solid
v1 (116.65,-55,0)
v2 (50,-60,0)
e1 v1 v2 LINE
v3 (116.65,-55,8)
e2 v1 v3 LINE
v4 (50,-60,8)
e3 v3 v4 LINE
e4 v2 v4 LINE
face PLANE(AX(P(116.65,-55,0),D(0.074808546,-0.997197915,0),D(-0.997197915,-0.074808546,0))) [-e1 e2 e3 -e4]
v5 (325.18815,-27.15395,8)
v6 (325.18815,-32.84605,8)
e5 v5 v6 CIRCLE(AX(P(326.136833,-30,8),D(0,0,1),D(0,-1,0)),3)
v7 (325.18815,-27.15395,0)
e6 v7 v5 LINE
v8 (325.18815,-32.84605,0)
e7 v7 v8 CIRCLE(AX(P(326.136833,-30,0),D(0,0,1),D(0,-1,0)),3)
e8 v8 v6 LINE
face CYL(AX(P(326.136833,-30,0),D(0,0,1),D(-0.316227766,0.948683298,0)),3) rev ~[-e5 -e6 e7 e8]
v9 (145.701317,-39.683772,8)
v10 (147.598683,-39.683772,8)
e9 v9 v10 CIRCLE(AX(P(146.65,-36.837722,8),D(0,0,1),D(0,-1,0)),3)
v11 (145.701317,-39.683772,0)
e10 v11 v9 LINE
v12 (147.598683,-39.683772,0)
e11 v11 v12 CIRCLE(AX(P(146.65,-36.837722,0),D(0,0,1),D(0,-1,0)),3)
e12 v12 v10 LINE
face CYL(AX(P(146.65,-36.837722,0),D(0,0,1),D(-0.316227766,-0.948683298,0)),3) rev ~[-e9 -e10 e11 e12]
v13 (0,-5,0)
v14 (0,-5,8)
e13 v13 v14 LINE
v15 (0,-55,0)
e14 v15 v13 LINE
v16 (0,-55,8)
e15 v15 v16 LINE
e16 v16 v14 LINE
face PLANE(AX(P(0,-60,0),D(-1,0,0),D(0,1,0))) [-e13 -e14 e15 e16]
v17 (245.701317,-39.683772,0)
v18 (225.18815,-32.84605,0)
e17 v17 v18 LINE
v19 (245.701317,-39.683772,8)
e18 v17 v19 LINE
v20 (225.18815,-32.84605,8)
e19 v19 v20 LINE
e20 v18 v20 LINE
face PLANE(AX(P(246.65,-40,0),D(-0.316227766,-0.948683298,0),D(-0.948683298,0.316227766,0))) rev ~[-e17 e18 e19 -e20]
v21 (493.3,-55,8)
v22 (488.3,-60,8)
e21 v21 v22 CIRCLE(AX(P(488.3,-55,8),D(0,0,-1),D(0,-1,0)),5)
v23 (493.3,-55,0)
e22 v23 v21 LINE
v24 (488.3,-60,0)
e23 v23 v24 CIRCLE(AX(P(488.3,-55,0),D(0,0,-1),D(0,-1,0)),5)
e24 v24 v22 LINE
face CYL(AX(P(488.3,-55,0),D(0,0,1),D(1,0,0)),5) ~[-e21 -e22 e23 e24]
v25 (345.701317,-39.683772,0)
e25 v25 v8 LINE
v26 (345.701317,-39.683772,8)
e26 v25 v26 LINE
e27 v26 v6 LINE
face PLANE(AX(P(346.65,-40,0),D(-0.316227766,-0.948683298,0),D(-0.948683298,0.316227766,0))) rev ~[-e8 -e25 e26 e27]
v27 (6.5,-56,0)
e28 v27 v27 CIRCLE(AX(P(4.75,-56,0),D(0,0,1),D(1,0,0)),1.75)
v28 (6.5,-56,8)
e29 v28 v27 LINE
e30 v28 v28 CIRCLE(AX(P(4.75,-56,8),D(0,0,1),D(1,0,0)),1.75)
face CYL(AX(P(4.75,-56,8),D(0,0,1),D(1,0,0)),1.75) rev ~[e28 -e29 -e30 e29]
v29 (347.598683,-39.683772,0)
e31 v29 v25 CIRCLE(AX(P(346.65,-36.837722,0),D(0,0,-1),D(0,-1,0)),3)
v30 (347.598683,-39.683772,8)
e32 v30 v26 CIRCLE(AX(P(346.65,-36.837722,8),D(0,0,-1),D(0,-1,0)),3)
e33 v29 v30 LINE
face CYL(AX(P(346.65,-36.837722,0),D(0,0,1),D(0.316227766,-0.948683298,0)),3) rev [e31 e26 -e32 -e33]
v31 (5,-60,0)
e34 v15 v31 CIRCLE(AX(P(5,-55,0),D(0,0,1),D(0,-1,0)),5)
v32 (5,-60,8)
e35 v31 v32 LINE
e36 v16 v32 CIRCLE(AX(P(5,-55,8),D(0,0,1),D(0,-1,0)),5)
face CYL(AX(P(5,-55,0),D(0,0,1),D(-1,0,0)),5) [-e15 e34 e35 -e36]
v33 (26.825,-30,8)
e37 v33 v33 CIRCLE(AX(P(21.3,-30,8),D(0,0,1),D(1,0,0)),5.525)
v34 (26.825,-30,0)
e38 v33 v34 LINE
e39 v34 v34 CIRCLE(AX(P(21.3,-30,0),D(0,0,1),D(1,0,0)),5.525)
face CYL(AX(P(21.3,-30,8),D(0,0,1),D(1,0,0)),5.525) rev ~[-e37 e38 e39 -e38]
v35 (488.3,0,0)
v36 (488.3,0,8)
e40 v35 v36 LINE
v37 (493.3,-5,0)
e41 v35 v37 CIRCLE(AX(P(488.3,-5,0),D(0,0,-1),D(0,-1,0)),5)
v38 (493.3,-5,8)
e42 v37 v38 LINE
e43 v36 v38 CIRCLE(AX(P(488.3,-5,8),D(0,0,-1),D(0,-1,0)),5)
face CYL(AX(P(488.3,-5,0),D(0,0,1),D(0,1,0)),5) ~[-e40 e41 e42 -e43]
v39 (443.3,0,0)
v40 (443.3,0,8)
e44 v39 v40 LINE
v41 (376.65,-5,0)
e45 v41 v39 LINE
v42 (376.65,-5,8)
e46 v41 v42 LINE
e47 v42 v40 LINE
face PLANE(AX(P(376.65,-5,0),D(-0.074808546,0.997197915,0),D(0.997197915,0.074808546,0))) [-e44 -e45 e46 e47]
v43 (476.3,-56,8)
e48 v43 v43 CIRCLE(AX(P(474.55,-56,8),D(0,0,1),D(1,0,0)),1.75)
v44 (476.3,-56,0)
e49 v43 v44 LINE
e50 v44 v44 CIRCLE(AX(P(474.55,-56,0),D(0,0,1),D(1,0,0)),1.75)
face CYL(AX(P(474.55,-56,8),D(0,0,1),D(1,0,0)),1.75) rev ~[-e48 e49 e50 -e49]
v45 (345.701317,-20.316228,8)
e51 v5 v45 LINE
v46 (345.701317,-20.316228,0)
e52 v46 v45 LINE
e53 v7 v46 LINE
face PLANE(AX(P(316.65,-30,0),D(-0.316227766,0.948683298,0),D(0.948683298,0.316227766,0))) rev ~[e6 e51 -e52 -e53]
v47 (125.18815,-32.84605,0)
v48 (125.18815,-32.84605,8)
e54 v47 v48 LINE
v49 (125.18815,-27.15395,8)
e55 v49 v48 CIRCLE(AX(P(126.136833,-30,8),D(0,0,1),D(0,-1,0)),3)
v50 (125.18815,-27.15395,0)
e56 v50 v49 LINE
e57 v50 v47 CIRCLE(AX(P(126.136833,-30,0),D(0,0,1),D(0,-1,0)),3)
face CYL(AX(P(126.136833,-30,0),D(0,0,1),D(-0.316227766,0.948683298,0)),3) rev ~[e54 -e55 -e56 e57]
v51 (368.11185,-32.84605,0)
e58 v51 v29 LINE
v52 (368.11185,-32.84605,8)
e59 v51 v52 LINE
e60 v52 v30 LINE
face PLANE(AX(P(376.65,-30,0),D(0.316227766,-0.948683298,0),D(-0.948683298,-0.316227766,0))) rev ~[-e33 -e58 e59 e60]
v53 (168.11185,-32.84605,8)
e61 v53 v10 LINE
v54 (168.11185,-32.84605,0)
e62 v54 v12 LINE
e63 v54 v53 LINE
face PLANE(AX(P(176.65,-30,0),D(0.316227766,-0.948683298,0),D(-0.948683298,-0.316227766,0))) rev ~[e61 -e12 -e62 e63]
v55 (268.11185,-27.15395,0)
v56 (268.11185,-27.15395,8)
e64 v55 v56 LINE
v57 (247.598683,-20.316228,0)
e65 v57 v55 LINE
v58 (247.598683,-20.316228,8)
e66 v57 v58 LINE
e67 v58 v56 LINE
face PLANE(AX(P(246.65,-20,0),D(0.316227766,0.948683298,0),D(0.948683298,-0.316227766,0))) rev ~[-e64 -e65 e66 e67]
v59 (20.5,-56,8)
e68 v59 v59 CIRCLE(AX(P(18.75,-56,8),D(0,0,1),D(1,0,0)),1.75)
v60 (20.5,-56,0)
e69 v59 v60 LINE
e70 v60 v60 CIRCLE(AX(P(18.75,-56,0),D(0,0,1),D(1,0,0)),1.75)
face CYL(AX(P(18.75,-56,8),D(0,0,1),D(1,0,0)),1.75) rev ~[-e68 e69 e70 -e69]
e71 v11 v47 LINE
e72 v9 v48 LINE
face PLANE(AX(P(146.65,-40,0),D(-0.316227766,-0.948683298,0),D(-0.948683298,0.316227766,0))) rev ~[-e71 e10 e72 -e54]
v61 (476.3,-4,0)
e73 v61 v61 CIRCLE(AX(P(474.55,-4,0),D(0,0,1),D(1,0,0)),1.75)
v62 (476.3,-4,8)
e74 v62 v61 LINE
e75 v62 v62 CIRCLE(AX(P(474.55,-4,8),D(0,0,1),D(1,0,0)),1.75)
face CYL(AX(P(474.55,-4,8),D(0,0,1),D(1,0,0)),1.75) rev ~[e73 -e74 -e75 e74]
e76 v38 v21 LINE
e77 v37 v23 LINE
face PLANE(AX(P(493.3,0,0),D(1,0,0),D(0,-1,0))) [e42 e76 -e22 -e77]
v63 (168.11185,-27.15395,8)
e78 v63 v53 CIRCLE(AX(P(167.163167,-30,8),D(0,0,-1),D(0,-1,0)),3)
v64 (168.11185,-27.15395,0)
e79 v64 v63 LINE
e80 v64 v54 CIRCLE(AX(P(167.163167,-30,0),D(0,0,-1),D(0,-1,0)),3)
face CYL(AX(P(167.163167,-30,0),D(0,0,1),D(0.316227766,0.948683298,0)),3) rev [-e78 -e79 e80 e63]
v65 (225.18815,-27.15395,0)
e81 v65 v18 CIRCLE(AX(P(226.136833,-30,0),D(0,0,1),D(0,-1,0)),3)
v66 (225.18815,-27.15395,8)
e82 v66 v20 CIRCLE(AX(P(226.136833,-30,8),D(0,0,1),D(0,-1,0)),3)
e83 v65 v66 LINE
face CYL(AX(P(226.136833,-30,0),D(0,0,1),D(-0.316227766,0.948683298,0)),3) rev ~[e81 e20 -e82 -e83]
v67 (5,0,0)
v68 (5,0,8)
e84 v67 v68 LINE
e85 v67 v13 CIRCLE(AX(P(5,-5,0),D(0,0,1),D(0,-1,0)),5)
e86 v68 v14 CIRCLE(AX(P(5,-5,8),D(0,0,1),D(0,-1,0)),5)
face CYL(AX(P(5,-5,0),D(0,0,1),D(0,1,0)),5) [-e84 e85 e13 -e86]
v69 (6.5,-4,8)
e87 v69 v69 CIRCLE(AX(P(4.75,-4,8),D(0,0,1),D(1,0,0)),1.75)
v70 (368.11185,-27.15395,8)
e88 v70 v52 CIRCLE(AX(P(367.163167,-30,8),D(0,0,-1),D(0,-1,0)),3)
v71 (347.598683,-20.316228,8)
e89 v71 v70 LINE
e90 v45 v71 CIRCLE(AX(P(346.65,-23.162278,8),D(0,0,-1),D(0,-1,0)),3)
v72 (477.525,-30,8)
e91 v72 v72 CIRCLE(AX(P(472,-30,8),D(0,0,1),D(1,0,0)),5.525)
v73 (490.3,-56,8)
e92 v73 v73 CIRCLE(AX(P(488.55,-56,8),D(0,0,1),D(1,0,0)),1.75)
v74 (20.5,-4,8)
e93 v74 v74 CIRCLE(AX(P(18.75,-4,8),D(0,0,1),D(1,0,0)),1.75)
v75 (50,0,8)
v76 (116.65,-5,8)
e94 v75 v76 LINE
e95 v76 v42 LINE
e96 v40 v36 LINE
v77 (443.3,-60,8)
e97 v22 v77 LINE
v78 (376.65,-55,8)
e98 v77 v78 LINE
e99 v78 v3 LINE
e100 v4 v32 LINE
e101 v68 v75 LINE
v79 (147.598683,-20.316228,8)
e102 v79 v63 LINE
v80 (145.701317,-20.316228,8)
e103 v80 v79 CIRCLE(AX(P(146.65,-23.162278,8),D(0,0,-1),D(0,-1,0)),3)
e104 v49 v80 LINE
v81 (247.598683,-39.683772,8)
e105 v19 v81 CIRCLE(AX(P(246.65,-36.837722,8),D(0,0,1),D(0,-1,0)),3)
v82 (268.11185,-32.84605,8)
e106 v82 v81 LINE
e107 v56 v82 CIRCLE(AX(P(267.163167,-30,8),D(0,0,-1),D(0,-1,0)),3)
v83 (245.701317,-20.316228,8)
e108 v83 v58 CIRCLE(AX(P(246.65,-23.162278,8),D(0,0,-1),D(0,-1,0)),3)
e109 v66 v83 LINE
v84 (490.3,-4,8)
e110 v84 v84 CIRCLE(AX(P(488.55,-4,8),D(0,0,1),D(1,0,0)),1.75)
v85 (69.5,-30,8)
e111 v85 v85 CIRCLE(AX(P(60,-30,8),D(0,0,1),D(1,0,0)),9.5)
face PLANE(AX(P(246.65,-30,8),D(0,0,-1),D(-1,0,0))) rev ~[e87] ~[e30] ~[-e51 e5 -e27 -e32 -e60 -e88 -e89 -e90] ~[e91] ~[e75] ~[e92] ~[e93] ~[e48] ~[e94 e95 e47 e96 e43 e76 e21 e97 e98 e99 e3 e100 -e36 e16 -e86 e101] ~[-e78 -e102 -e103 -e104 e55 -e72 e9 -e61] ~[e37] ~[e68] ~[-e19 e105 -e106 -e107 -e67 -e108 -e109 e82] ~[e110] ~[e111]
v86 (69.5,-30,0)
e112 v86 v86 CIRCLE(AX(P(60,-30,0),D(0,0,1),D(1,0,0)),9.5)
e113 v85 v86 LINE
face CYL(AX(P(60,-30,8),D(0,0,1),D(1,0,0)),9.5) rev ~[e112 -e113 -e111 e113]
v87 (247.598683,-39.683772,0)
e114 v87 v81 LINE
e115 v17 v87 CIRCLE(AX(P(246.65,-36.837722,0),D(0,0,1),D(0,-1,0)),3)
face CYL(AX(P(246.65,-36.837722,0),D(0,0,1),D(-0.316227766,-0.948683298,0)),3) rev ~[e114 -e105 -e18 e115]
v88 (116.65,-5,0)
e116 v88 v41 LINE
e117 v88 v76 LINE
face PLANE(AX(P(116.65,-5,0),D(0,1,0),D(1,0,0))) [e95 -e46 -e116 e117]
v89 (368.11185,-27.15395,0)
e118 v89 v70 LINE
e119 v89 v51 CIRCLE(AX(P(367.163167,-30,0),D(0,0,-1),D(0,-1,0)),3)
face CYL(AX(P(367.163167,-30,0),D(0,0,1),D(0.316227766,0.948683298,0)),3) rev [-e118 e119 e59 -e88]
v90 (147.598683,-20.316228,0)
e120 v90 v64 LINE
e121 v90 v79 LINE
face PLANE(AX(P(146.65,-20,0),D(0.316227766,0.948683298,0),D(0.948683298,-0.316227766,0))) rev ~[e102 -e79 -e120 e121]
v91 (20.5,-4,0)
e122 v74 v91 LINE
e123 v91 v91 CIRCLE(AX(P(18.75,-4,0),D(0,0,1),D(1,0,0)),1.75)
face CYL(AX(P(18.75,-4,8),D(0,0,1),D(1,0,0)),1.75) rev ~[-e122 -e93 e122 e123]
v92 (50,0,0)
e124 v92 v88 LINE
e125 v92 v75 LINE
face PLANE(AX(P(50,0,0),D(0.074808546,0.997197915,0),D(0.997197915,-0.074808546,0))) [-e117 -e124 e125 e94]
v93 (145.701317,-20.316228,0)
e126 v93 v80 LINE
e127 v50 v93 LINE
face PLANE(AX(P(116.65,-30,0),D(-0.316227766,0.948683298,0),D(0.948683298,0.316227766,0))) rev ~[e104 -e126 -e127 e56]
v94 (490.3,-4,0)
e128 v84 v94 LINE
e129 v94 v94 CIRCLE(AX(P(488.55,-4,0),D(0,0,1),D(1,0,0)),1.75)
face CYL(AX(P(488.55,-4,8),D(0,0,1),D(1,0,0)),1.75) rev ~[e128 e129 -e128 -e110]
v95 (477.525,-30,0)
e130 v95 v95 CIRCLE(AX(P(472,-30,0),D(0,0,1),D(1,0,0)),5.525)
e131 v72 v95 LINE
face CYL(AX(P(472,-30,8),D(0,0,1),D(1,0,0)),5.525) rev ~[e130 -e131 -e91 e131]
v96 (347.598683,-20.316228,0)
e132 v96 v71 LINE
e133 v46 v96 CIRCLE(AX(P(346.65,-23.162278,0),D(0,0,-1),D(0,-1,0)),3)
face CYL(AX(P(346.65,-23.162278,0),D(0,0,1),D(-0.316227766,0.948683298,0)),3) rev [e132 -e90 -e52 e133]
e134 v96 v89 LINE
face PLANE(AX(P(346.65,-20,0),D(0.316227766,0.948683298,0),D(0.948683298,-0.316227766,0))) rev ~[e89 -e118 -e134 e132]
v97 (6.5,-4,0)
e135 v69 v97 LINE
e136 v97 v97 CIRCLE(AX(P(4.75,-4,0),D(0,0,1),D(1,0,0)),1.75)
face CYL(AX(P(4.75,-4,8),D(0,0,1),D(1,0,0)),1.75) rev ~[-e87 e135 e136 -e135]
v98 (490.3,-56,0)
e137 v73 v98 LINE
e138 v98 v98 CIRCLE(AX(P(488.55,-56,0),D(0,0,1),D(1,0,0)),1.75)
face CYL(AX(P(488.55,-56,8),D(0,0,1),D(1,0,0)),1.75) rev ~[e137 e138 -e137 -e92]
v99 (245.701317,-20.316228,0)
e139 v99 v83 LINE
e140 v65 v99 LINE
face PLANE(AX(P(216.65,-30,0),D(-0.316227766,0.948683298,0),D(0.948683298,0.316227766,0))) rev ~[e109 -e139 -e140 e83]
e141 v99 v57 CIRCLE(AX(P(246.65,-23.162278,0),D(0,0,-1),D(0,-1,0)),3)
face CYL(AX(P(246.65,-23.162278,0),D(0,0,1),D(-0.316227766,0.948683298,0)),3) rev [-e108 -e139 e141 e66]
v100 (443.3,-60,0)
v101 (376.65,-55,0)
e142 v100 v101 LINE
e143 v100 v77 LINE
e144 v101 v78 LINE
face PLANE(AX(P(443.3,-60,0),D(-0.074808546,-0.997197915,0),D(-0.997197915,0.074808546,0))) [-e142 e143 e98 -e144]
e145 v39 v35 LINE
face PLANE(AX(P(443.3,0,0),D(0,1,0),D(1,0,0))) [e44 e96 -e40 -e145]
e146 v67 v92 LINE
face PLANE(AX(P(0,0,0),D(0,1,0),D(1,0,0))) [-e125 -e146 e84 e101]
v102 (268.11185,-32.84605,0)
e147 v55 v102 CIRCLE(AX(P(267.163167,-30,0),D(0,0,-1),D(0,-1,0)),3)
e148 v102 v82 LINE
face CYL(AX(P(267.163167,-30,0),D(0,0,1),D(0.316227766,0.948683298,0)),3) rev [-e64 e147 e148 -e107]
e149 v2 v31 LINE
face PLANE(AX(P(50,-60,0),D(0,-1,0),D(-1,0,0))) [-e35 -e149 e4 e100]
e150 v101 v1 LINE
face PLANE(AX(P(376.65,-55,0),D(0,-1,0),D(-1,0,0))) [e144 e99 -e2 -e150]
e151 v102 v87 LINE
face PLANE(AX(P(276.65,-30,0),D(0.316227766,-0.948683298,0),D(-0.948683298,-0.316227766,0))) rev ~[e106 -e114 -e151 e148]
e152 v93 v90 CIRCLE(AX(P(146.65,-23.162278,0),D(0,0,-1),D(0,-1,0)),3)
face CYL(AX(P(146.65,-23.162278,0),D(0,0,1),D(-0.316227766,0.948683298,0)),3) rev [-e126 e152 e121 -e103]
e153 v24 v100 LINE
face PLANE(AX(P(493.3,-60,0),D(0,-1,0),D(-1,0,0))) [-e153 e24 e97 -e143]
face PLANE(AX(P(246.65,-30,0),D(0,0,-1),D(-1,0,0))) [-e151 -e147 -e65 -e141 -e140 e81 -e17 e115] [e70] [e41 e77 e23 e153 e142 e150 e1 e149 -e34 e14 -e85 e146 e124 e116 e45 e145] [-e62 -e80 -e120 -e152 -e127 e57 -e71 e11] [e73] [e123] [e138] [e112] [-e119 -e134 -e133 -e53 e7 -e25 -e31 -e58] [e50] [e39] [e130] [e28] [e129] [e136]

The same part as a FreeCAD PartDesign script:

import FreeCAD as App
import Part
import Sketcher
from FreeCAD import Vector


def edges_at(feature, points):
    """Names of the edges that pass closest to the given points."""
    edges = feature.Shape.Edges
    near = lambda p: min(range(len(edges)), key=lambda i: edges[i].distToShape(Part.Vertex(*p))[0])
    return sorted({f"Edge{near(p) + 1}" for p in points})


def add_polygon(sketch, points):
    """Adds a closed chain of lines whose ends are joined by coincident constraints."""
    first, n = sketch.GeometryCount, len(points)
    for a, b in zip(points, points[1:] + points[:1]):
        sketch.addGeometry(Part.LineSegment(App.Vector(*a, 0), App.Vector(*b, 0)), False)
    for i in range(n):
        sketch.addConstraint(Sketcher.Constraint("Coincident", first + i, 2, first + (i + 1) % n, 1))

doc = App.newDocument("Part")
body = doc.addObject("PartDesign::Body", "Body")

sketch1 = body.newObject("Sketcher::SketchObject", "Sketch")
sketch1.AttachmentSupport = (doc.getObject("XY_Plane"), [""])
sketch1.MapMode = "FlatFace"
add_polygon(sketch1, [(50, 0), (0, 0), (0, -60), (50, -60), (117, -55), (377, -55), (443, -60), (493, -60), (493, 0), (443, 0), (377, -5), (117, -5)])
add_polygon(sketch1, [(317, -30), (347, -20), (377, -30), (347, -40)])
add_polygon(sketch1, [(217, -30), (247, -20), (277, -30), (247, -40)])
add_polygon(sketch1, [(117, -30), (147, -20), (177, -30), (147, -40)])
sketch1.addConstraint([
    Sketcher.Constraint("Horizontal", 0),
    Sketcher.Constraint("Vertical", 1),
    Sketcher.Constraint("Horizontal", 2),
    Sketcher.Constraint("Horizontal", 4),
    Sketcher.Constraint("Horizontal", 6),
    Sketcher.Constraint("Vertical", 7),
    Sketcher.Constraint("Horizontal", 8),
    Sketcher.Constraint("Horizontal", 10),
    Sketcher.Constraint("Coincident", 0, 2, -1, 1),
    Sketcher.Constraint("PointOnObject", 7, 2, -1),
    Sketcher.Constraint("Parallel", 3, 9),
    Sketcher.Constraint("Parallel", 5, 11),
    Sketcher.Constraint("Parallel", 12, 14),
    Sketcher.Constraint("Parallel", 13, 15),
    Sketcher.Constraint("Parallel", 14, 16),
    Sketcher.Constraint("Parallel", 15, 17),
    Sketcher.Constraint("Parallel", 16, 18),
    Sketcher.Constraint("Parallel", 17, 19),
    Sketcher.Constraint("Parallel", 18, 20),
    Sketcher.Constraint("Parallel", 19, 21),
    Sketcher.Constraint("Parallel", 20, 22),
    Sketcher.Constraint("Parallel", 21, 23),
    Sketcher.Constraint("Horizontal", 2, 2, 5, 2),
    Sketcher.Constraint("Horizontal", 13, 2, 15, 2),
    Sketcher.Constraint("Horizontal", 12, 2, 16, 2),
    Sketcher.Constraint("Horizontal", 15, 2, 17, 2),
    Sketcher.Constraint("Horizontal", 14, 2, 18, 2),
    Sketcher.Constraint("Horizontal", 16, 2, 20, 2),
    Sketcher.Constraint("Horizontal", 19, 2, 21, 2),
    Sketcher.Constraint("Horizontal", 18, 2, 22, 2),
    Sketcher.Constraint("Vertical", 5, 2, 8, 2),
    Sketcher.Constraint("Vertical", 4, 2, 9, 2),
    Sketcher.Constraint("Vertical", 3, 2, 10, 2),
    Sketcher.Constraint("Vertical", 2, 2, 11, 2),
    Sketcher.Constraint("Vertical", 9, 2, 13, 2),
    Sketcher.Constraint("Vertical", 12, 2, 14, 2),
    Sketcher.Constraint("Vertical", 10, 2, 23, 2),
    Sketcher.Constraint("Equal", 2, 6),
    Sketcher.Constraint("DistanceX", 0, 2, 0, 1, 50.0),
    Sketcher.Constraint("DistanceX", 4, 1, 4, 2, 260.0),
    Sketcher.Constraint("DistanceY", 1, 2, 1, 1, 60.0),
    Sketcher.Constraint("DistanceY", 3, 2, -1, 1, 55.0),
    Sketcher.Constraint("DistanceY", 12, 2, -1, 1, 20.0),
    Sketcher.Constraint("DistanceY", 13, 2, -1, 1, 30.0),
    Sketcher.Constraint("DistanceX", 12, 2, 9, 2, 30.0),
    Sketcher.Constraint("DistanceX", 16, 2, 15, 2, 70.0),
    Sketcher.Constraint("DistanceX", -1, 1, 5, 2, 443.3),
])
pad1 = body.newObject("PartDesign::Pad", "Pad")
pad1.Profile = sketch1
pad1.Length = 8
doc.recompute()

fillet = body.newObject("PartDesign::Fillet", "Fillet")
fillet.Base = (pad1, edges_at(pad1, [
    (216.65, -30, 4),
    (246.65, -40, 4),
    (276.65, -30, 4),
    (246.65, -20, 4),
    (116.65, -30, 4),
    (146.65, -40, 4),
    (176.65, -30, 4),
    (146.65, -20, 4),
    (316.65, -30, 4),
    (346.65, -40, 4),
    (376.65, -30, 4),
    (346.65, -20, 4),
]))
fillet.Radius = 3
doc.recompute()

fillet2 = body.newObject("PartDesign::Fillet", "Fillet001")
fillet2.Base = (fillet, edges_at(fillet, [
    (0, 0, 4),
    (493.3, 0, 4),
    (493.3, -60, 4),
    (0, -60, 4),
]))
fillet2.Radius = 5

sketch2 = body.newObject("Sketcher::SketchObject", "Sketch001")
sketch2.AttachmentSupport = (doc.getObject("XY_Plane"), [""])
sketch2.MapMode = "FlatFace"
sketch2.AttachmentOffset = App.Placement(Vector(0, 0, 8), App.Rotation())
sketch2.addGeometry([
    Part.Circle(Vector(4.8, -4, 0), Vector(0, 0, 1), 1.8),
    Part.Circle(Vector(18.8, -4, 0), Vector(0, 0, 1), 1.8),
    Part.Circle(Vector(18.8, -56, 0), Vector(0, 0, 1), 1.8),
    Part.Circle(Vector(4.8, -56, 0), Vector(0, 0, 1), 1.8),
    Part.Circle(Vector(21.3, -30, 0), Vector(0, 0, 1), 5.5),
    Part.Circle(Vector(488.6, -4, 0), Vector(0, 0, 1), 1.8),
    Part.Circle(Vector(474.6, -4, 0), Vector(0, 0, 1), 1.8),
    Part.Circle(Vector(474.6, -56, 0), Vector(0, 0, 1), 1.8),
    Part.Circle(Vector(488.6, -56, 0), Vector(0, 0, 1), 1.8),
    Part.Circle(Vector(472, -30, 0), Vector(0, 0, 1), 5.5),
], False)
sketch2.addConstraint([
    Sketcher.Constraint("Equal", 0, 1),
    Sketcher.Constraint("Equal", 1, 2),
    Sketcher.Constraint("Equal", 2, 3),
    Sketcher.Constraint("Equal", 3, 5),
    Sketcher.Constraint("Equal", 5, 6),
    Sketcher.Constraint("Equal", 6, 7),
    Sketcher.Constraint("Equal", 7, 8),
    Sketcher.Constraint("Equal", 4, 9),
    Sketcher.Constraint("Horizontal", 0, 3, 1, 3),
    Sketcher.Constraint("Horizontal", 2, 3, 3, 3),
    Sketcher.Constraint("Horizontal", 1, 3, 5, 3),
    Sketcher.Constraint("Horizontal", 5, 3, 6, 3),
    Sketcher.Constraint("Horizontal", 3, 3, 7, 3),
    Sketcher.Constraint("Horizontal", 7, 3, 8, 3),
    Sketcher.Constraint("Horizontal", 4, 3, 9, 3),
    Sketcher.Constraint("Vertical", 1, 3, 2, 3),
    Sketcher.Constraint("Vertical", 0, 3, 3, 3),
    Sketcher.Constraint("Vertical", 6, 3, 7, 3),
    Sketcher.Constraint("Vertical", 5, 3, 8, 3),
    Sketcher.Constraint("Diameter", 0, 3.5),
    Sketcher.Constraint("Diameter", 4, 11.05),
    Sketcher.Constraint("DistanceY", 0, 3, -1, 1, 4.0),
    Sketcher.Constraint("DistanceY", 2, 3, -1, 1, 56.0),
    Sketcher.Constraint("DistanceY", 4, 3, -1, 1, 30.0),
    Sketcher.Constraint("DistanceX", -1, 1, 9, 3, 472.0),
    Sketcher.Constraint("DistanceX", 0, 3, 1, 3, 14.0),
    Sketcher.Constraint("DistanceX", 6, 3, 5, 3, 14.0),
    Sketcher.Constraint("DistanceX", -1, 1, 4, 3, 21.3),
    Sketcher.Constraint("DistanceX", 1, 3, 5, 3, 469.8),
    Sketcher.Constraint("DistanceX", -1, 1, 0, 3, 4.75),
])
pocket1 = body.newObject("PartDesign::Pocket", "Pocket")
pocket1.Profile = sketch2
pocket1.Length = 10

sketch3 = body.newObject("Sketcher::SketchObject", "Sketch002")
sketch3.AttachmentSupport = (doc.getObject("XY_Plane"), [""])
sketch3.MapMode = "FlatFace"
sketch3.AttachmentOffset = App.Placement(Vector(0, 0, 8), App.Rotation())
sketch3.addGeometry(Part.Circle(Vector(60, -30, 0), Vector(0, 0, 1), 10), False)
sketch3.addConstraint([
    Sketcher.Constraint("Diameter", 0, 19.0),
    Sketcher.Constraint("DistanceX", -1, 1, 0, 3, 60.0),
    Sketcher.Constraint("DistanceY", 0, 3, -1, 1, 30.0),
])
pocket2 = body.newObject("PartDesign::Pocket", "Pocket001")
pocket2.Profile = sketch3
pocket2.Type = "ThroughAll"

doc.recompute()
